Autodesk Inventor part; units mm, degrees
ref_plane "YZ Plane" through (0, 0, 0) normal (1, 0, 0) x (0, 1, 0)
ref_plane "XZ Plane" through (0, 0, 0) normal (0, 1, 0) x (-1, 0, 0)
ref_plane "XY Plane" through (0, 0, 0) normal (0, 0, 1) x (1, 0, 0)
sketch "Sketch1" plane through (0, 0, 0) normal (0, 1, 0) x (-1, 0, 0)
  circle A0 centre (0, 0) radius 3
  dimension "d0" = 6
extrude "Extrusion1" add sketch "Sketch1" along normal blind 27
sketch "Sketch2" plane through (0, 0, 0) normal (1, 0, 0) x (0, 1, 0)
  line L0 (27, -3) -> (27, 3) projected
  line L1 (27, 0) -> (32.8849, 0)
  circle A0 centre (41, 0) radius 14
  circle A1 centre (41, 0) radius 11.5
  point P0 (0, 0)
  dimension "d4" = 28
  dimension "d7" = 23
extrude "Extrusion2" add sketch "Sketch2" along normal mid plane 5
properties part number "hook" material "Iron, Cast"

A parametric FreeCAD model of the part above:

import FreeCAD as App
import Part
import Sketcher

V = App.Vector

doc = App.newDocument("Part")
body = doc.addObject("PartDesign::Body", "Body")
body.AllowCompound = True

sketch1 = doc.addObject("Sketcher::SketchObject", "Sketch")
body.addObject(sketch1)
sketch1.AttachmentSupport = (doc.XZ_Plane, [""])
sketch1.MapMode = "FlatFace"
sketch1.addGeometry(Part.Circle(V(0, 0, 0), V(0, 0, 1), 3), False)
sketch1.addConstraint(Sketcher.Constraint("Coincident", 0, 3, -1, 1))
sketch1.addConstraint(Sketcher.Constraint("Diameter", 0, 6.0))
pad1 = doc.addObject("PartDesign::Pad", "Pad")
body.addObject(pad1)
pad1.Profile = sketch1
pad1.Length = 27
pad1.Reversed = True

sketch2 = doc.addObject("Sketcher::SketchObject", "Sketch001")
body.addObject(sketch2)
sketch2.AttachmentSupport = (doc.YZ_Plane, [""])
sketch2.MapMode = "FlatFace"
sketch2.addGeometry(Part.Circle(V(41, 0, 0), V(0, 0, 1), 14), False)
sketch2.addGeometry(Part.Circle(V(41, 0, 0), V(0, 0, 1), 12), False)
sketch2.addConstraint(Sketcher.Constraint("Coincident", 1, 3, 0, 3))
sketch2.addConstraint(Sketcher.Constraint("PointOnObject", 0, 3, -1))
sketch2.addConstraint(Sketcher.Constraint("Diameter", 0, 28.0))
sketch2.addConstraint(Sketcher.Constraint("Diameter", 1, 23.0))
sketch2.addConstraint(Sketcher.Constraint("DistanceX", -1, 1, 0, 3, 41.0))
pad2 = doc.addObject("PartDesign::Pad", "Pad001")
body.addObject(pad2)
pad2.Profile = sketch2
pad2.Length = 5
pad2.Midplane = True

doc.recompute()
